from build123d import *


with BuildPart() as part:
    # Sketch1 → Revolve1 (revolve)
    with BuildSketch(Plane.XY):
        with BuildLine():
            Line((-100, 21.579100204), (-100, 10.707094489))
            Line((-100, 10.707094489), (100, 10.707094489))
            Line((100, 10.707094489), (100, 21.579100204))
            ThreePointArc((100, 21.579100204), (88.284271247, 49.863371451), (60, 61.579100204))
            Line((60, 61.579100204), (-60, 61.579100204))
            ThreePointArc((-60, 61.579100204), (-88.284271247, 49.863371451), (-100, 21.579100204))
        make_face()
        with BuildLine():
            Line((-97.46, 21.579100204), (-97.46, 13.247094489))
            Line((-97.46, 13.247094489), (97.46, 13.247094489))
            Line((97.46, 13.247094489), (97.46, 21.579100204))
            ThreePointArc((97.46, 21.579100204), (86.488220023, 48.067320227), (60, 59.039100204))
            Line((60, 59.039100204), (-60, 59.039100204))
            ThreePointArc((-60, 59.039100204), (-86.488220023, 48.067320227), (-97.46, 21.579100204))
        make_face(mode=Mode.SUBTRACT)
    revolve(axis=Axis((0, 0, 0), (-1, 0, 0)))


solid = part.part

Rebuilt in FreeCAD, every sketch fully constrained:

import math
import FreeCAD as App
import Part
import Sketcher
from FreeCAD import Vector
Q = App.Units.Quantity

doc = App.newDocument("Part")
body = doc.addObject("PartDesign::Body", "Body")

# Sketch on XY plane
sketch1 = body.newObject("Sketcher::SketchObject", "Sketch")
sketch1.AttachmentSupport = (doc.getObject("XY_Plane"), [""])
sketch1.MapMode = "FlatFace"
sketch1.addGeometry(Part.LineSegment(Vector(-100, 21.5791, 0), Vector(-100, 10.707094, 0)), False)
sketch1.addGeometry(Part.LineSegment(Vector(-100, 10.707094, 0), Vector(100, 10.707094, 0)), False)
sketch1.addGeometry(Part.LineSegment(Vector(100, 10.707094, 0), Vector(100, 21.5791, 0)), False)
sketch1.addGeometry(Part.ArcOfCircle(Part.Circle(Vector(60, 21.5791, 0), Vector(0, 0, 1), 40), math.radians(0), math.radians(90)), False)
sketch1.addGeometry(Part.LineSegment(Vector(60, 61.5791, 0), Vector(-60, 61.5791, 0)), False)
sketch1.addGeometry(Part.ArcOfCircle(Part.Circle(Vector(-60, 21.5791, 0), Vector(0, 0, 1), 40), math.radians(90), math.radians(180)), False)
sketch1.addGeometry(Part.LineSegment(Vector(-97.46, 13.247094, 0), Vector(-97.46, 21.5791, 0)), False)
sketch1.addGeometry(Part.ArcOfCircle(Part.Circle(Vector(-60, 21.5791, 0), Vector(0, 0, 1), 37.46), math.radians(90), math.radians(180)), False)
sketch1.addGeometry(Part.LineSegment(Vector(-60, 59.0391, 0), Vector(60, 59.0391, 0)), False)
sketch1.addGeometry(Part.ArcOfCircle(Part.Circle(Vector(60, 21.5791, 0), Vector(0, 0, 1), 37.46), math.radians(0), math.radians(90)), False)
sketch1.addGeometry(Part.LineSegment(Vector(97.46, 21.5791, 0), Vector(97.46, 13.247094, 0)), False)
sketch1.addGeometry(Part.LineSegment(Vector(97.46, 13.247094, 0), Vector(-97.46, 13.247094, 0)), False)
sketch1.addConstraint(Sketcher.Constraint("Coincident", 0, 2, 1, 1))
sketch1.addConstraint(Sketcher.Constraint("Coincident", 1, 2, 2, 1))
sketch1.addConstraint(Sketcher.Constraint("Tangent", 2, 2, 3, 1))
sketch1.addConstraint(Sketcher.Constraint("Tangent", 3, 2, 4, 1))
sketch1.addConstraint(Sketcher.Constraint("Tangent", 4, 2, 5, 1))
sketch1.addConstraint(Sketcher.Constraint("Tangent", 5, 2, 0, 1))
sketch1.addConstraint(Sketcher.Constraint("Tangent", 6, 2, 7, 2))
sketch1.addConstraint(Sketcher.Constraint("Tangent", 7, 1, 8, 1))
sketch1.addConstraint(Sketcher.Constraint("Tangent", 8, 2, 9, 2))
sketch1.addConstraint(Sketcher.Constraint("Tangent", 9, 1, 10, 1))
sketch1.addConstraint(Sketcher.Constraint("Coincident", 10, 2, 11, 1))
sketch1.addConstraint(Sketcher.Constraint("Coincident", 11, 2, 6, 1))
sketch1.addConstraint(Sketcher.Constraint("Vertical", 0))
sketch1.addConstraint(Sketcher.Constraint("Horizontal", 1))
sketch1.addConstraint(Sketcher.Constraint("Vertical", 2))
sketch1.addConstraint(Sketcher.Constraint("Horizontal", 4))
sketch1.addConstraint(Sketcher.Constraint("Vertical", 6))
sketch1.addConstraint(Sketcher.Constraint("Horizontal", 8))
sketch1.addConstraint(Sketcher.Constraint("Vertical", 10))
sketch1.addConstraint(Sketcher.Constraint("Horizontal", 11))
sketch1.addConstraint(Sketcher.Constraint("Coincident", 7, 3, 5, 3))
sketch1.addConstraint(Sketcher.Constraint("Coincident", 9, 3, 3, 3))
sketch1.addConstraint(Sketcher.Constraint("Equal", 3, 5))
sketch1.addConstraint(Sketcher.Constraint("Radius", 3, Q("40 mm")))
sketch1.addConstraint(Sketcher.Constraint("DistanceX", 1, 1, 1, 2, Q("200 mm")))
sketch1.addConstraint(Sketcher.Constraint("Radius", 7, Q("37.46 mm")))
sketch1.addConstraint(Sketcher.Constraint("DistanceX", -1, 1, 3, 3, Q("60 mm")))
sketch1.addConstraint(Sketcher.Constraint("DistanceY", 1, 2, 10, 2, Q("2.54 mm")))
sketch1.addConstraint(Sketcher.Constraint("DistanceY", -1, 1, 3, 3, Q("21.5791 mm")))
sketch1.addConstraint(Sketcher.Constraint("DistanceY", 0, 2, 0, 1, Q("10.872006 mm")))
revolution = body.newObject("PartDesign::Revolution", "Revolution")
revolution.Profile = sketch1
revolution.ReferenceAxis = (sketch1, ["H_Axis"])
revolution.Angle = 360

doc.recompute()
